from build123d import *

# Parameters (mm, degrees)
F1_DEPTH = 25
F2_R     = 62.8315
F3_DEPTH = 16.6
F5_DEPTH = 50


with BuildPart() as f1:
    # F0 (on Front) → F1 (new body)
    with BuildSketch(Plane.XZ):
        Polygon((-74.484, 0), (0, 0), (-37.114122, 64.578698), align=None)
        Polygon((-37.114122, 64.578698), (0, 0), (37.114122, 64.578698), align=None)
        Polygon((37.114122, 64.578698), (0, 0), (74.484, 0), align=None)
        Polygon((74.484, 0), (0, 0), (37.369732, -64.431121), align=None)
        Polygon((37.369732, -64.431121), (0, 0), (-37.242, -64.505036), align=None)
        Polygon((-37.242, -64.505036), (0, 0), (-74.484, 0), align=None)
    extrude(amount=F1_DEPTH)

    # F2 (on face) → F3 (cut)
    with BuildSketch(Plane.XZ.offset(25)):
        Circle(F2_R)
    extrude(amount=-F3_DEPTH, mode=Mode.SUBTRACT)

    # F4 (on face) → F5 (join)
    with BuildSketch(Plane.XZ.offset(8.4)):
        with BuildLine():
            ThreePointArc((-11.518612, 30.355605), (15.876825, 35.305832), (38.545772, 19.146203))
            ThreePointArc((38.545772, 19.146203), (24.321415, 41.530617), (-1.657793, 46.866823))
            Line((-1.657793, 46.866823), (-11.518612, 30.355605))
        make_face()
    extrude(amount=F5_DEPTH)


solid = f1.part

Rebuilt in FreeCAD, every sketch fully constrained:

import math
import FreeCAD as App
import Part
import Sketcher
Q = App.Units.Quantity

doc = App.newDocument("Part")
params = doc.addObject("Spreadsheet::Sheet", "Params")
for row, (alias, value) in enumerate([
    ("pad1_length", "25 mm"),
    ("pocket1_length", "16.6 mm"),
    ("pad2_length", "50 mm"),
], start=1):
    params.set(f"A{row}", alias)
    params.set(f"B{row}", "=" + value)
    params.setAlias(f"B{row}", alias)

body = doc.addObject("PartDesign::Body", "Body")

# Sketch on XZ plane
sketch1 = body.newObject("Sketcher::SketchObject", "Sketch")
sketch1.AttachmentSupport = (doc.getObject("XZ_Plane"), [""])
sketch1.MapMode = "FlatFace"
sketch1.addGeometry(Part.LineSegment(App.Vector(-37, -65, 0), App.Vector(37, -64, 0)), False)
sketch1.addGeometry(Part.LineSegment(App.Vector(37, -64, 0), App.Vector(74, 0, 0)), False)
sketch1.addGeometry(Part.LineSegment(App.Vector(74, 0, 0), App.Vector(37, 65, 0)), False)
sketch1.addGeometry(Part.LineSegment(App.Vector(37, 65, 0), App.Vector(-37, 65, 0)), False)
sketch1.addGeometry(Part.LineSegment(App.Vector(-37, 65, 0), App.Vector(-74, 0, 0)), False)
sketch1.addGeometry(Part.LineSegment(App.Vector(-74, 0, 0), App.Vector(-37, -65, 0)), False)
sketch1.addConstraint(Sketcher.Constraint("Coincident", 0, 2, 1, 1))
sketch1.addConstraint(Sketcher.Constraint("Coincident", 1, 2, 2, 1))
sketch1.addConstraint(Sketcher.Constraint("Coincident", 2, 2, 3, 1))
sketch1.addConstraint(Sketcher.Constraint("Coincident", 3, 2, 4, 1))
sketch1.addConstraint(Sketcher.Constraint("Coincident", 4, 2, 5, 1))
sketch1.addConstraint(Sketcher.Constraint("Coincident", 5, 2, 0, 1))
sketch1.addConstraint(Sketcher.Constraint("Horizontal", 3))
sketch1.addConstraint(Sketcher.Constraint("Symmetric", 1, 2, 4, 2, -1, 1))
sketch1.addConstraint(Sketcher.Constraint("PointOnObject", 1, 2, -1))
sketch1.addConstraint(Sketcher.Constraint("Equal", 0, 2))
sketch1.addConstraint(Sketcher.Constraint("Equal", 2, 4))
sketch1.addConstraint(Sketcher.Constraint("Angle", 5, Q("-60 deg")))
sketch1.addConstraint(Sketcher.Constraint("Distance", 5, Q("74.484 mm")))
sketch1.addConstraint(Sketcher.Constraint("DistanceX", -1, 1, 1, 2, Q("74.484 mm")))
sketch1.addConstraint(Sketcher.Constraint("DistanceY", -1, 1, 2, 2, Q("64.578698 mm")))
sketch1.addConstraint(Sketcher.Constraint("Distance", 0, Q("74.611769 mm")))
sketch1.addConstraint(Sketcher.Constraint("Distance", 1, Q("74.356158 mm")))
pad1 = body.newObject("PartDesign::Pad", "Pad")
pad1.Profile = sketch1
pad1.setExpression("Length", "Params.pad1_length")

# Sketch on XZ plane
sketch2 = body.newObject("Sketcher::SketchObject", "Sketch001")
sketch2.AttachmentSupport = (doc.getObject("XZ_Plane"), [""])
sketch2.MapMode = "FlatFace"
sketch2.AttachmentOffset = App.Placement(App.Vector(0, 0, 25), App.Rotation())
sketch2.addGeometry(Part.Circle(App.Vector(0, 0, 0), App.Vector(0, 0, 1), 63), False)
sketch2.addConstraint(Sketcher.Constraint("Coincident", 0, 3, -1, 1))
sketch2.addConstraint(Sketcher.Constraint("Diameter", 0, Q("125.663 mm")))
pocket1 = body.newObject("PartDesign::Pocket", "Pocket")
pocket1.Profile = sketch2
pocket1.setExpression("Length", "Params.pocket1_length")

# Sketch on XZ plane
sketch3 = body.newObject("Sketcher::SketchObject", "Sketch002")
sketch3.AttachmentSupport = (doc.getObject("XZ_Plane"), [""])
sketch3.MapMode = "FlatFace"
sketch3.AttachmentOffset = App.Placement(App.Vector(0, 0, 8.4), App.Rotation())
sketch3.addGeometry(Part.ArcOfCircle(Part.Circle(App.Vector(8, 0, 0), App.Vector(0, 0, 1), 36), math.radians(32), math.radians(123)), False)
sketch3.addGeometry(Part.ArcOfCircle(Part.Circle(App.Vector(5, 14, 0), App.Vector(0, 0, 1), 34), math.radians(9), math.radians(101)), False)
sketch3.addGeometry(Part.LineSegment(App.Vector(-2, 47, 0), App.Vector(-12, 30, 0)), False)
sketch3.addConstraint(Sketcher.Constraint("Coincident", 0, 1, 1, 1))
sketch3.addConstraint(Sketcher.Constraint("Coincident", 1, 2, 2, 1))
sketch3.addConstraint(Sketcher.Constraint("Coincident", 2, 2, 0, 2))
sketch3.addConstraint(Sketcher.Constraint("Radius", 0, Q("35.826381 mm")))
sketch3.addConstraint(Sketcher.Constraint("Radius", 1, Q("33.967408 mm")))
sketch3.addConstraint(Sketcher.Constraint("DistanceX", 1, 3, 0, 3, Q("3.0093 mm")))
sketch3.addConstraint(Sketcher.Constraint("DistanceY", 0, 1, 2, 2, Q("11.209402 mm")))
sketch3.addConstraint(Sketcher.Constraint("DistanceY", -1, 1, 1, 3, Q("13.56627 mm")))
sketch3.addConstraint(Sketcher.Constraint("DistanceX", 2, 2, -1, 1, Q("11.518612 mm")))
sketch3.addConstraint(Sketcher.Constraint("DistanceX", 1, 2, 1, 3, Q("6.697608 mm")))
sketch3.addConstraint(Sketcher.Constraint("DistanceY", 0, 1, 1, 2, Q("27.72062 mm")))
pad2 = body.newObject("PartDesign::Pad", "Pad001")
pad2.Profile = sketch3
pad2.setExpression("Length", "Params.pad2_length")

doc.recompute()
